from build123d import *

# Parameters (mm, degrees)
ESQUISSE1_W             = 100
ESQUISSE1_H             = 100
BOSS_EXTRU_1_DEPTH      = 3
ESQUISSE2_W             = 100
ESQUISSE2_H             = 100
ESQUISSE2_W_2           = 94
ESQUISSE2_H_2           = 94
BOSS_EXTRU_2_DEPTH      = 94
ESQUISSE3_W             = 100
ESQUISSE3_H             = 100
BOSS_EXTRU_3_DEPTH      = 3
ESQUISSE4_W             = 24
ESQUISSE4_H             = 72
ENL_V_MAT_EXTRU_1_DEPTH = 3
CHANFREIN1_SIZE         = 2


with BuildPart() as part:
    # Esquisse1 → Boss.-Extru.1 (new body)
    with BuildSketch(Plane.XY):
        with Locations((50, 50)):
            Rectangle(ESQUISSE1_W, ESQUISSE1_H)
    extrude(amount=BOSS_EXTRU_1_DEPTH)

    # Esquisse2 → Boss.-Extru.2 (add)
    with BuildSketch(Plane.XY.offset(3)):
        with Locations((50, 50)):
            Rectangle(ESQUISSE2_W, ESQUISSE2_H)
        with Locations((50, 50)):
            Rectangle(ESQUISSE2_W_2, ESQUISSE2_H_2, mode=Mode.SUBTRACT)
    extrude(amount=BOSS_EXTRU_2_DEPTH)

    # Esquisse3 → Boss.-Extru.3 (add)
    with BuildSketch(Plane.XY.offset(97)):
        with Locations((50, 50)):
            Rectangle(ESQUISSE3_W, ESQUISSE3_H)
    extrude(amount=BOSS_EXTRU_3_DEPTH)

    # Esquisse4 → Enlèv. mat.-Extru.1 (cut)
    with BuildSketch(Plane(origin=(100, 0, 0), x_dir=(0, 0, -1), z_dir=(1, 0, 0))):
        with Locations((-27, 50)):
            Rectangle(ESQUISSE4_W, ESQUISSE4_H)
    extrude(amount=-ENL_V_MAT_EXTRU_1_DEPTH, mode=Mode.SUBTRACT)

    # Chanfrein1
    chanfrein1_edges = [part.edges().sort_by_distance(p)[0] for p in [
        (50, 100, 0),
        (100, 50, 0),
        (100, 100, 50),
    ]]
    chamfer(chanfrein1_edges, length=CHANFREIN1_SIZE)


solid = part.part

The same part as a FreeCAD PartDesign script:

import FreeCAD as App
import Part
import Sketcher
from FreeCAD import Vector


def edges_at(feature, points):
    """Names of the edges that pass closest to the given points."""
    edges = feature.Shape.Edges
    near = lambda p: min(range(len(edges)), key=lambda i: edges[i].distToShape(Part.Vertex(*p))[0])
    return sorted({f"Edge{near(p) + 1}" for p in points})

doc = App.newDocument("Part")
params = doc.addObject("Spreadsheet::Sheet", "Params")
for row, (alias, value) in enumerate([
    ("sketch1_width", "100 mm"),
    ("pad1_length", "3 mm"),
    ("sketch2_width", "100 mm"),
    ("sketch2_width2", "94 mm"),
    ("pad2_length", "94 mm"),
    ("sketch3_width", "100 mm"),
    ("pad3_length", "3 mm"),
    ("sketch4_width", "72 mm"),
    ("sketch4_height", "24 mm"),
    ("pocket1_length", "3 mm"),
    ("chamfer_size", "2 mm"),
], start=1):
    params.set(f"A{row}", alias)
    params.set(f"B{row}", "=" + value)
    params.setAlias(f"B{row}", alias)

body = doc.addObject("PartDesign::Body", "Body")

sketch1 = body.newObject("Sketcher::SketchObject", "Sketch")
sketch1.AttachmentSupport = (doc.getObject("XY_Plane"), [""])
sketch1.MapMode = "FlatFace"
sketch1.addGeometry([
    Part.LineSegment(Vector(0, 100, 0), Vector(0, 0, 0)),
    Part.LineSegment(Vector(0, 0, 0), Vector(100, 0, 0)),
    Part.LineSegment(Vector(100, 0, 0), Vector(100, 100, 0)),
    Part.LineSegment(Vector(100, 100, 0), Vector(0, 100, 0)),
], False)
sketch1.addConstraint([
    Sketcher.Constraint("Coincident", 0, 2, 1, 1),
    Sketcher.Constraint("Coincident", 1, 2, 2, 1),
    Sketcher.Constraint("Coincident", 2, 2, 3, 1),
    Sketcher.Constraint("Coincident", 3, 2, 0, 1),
    Sketcher.Constraint("Vertical", 0),
    Sketcher.Constraint("Horizontal", 1),
    Sketcher.Constraint("Vertical", 2),
    Sketcher.Constraint("Horizontal", 3),
    Sketcher.Constraint("Coincident", 0, 2, -1, 1),
    Sketcher.Constraint("Equal", 3, 0),
    Sketcher.Constraint("DistanceX", 1, 1, 1, 2, 100.0),
])
sketch1.setExpression("Constraints[10]", "Params.sketch1_width")
pad1 = body.newObject("PartDesign::Pad", "Pad")
pad1.Profile = sketch1
pad1.setExpression("Length", "Params.pad1_length")

sketch2 = body.newObject("Sketcher::SketchObject", "Sketch001")
sketch2.AttachmentSupport = (doc.getObject("XY_Plane"), [""])
sketch2.MapMode = "FlatFace"
sketch2.AttachmentOffset = App.Placement(Vector(0, 0, 3), App.Rotation())
sketch2.addGeometry([
    Part.LineSegment(Vector(0, 100, 0), Vector(0, 0, 0)),
    Part.LineSegment(Vector(0, 0, 0), Vector(100, 0, 0)),
    Part.LineSegment(Vector(100, 0, 0), Vector(100, 100, 0)),
    Part.LineSegment(Vector(100, 100, 0), Vector(0, 100, 0)),
    Part.LineSegment(Vector(97, 3, 0), Vector(3, 3, 0)),
    Part.LineSegment(Vector(3, 3, 0), Vector(3, 97, 0)),
    Part.LineSegment(Vector(3, 97, 0), Vector(97, 97, 0)),
    Part.LineSegment(Vector(97, 97, 0), Vector(97, 3, 0)),
], False)
sketch2.addConstraint([
    Sketcher.Constraint("Coincident", 0, 2, 1, 1),
    Sketcher.Constraint("Coincident", 1, 2, 2, 1),
    Sketcher.Constraint("Coincident", 2, 2, 3, 1),
    Sketcher.Constraint("Coincident", 3, 2, 0, 1),
    Sketcher.Constraint("Coincident", 4, 2, 5, 1),
    Sketcher.Constraint("Coincident", 5, 2, 6, 1),
    Sketcher.Constraint("Coincident", 6, 2, 7, 1),
    Sketcher.Constraint("Coincident", 7, 2, 4, 1),
    Sketcher.Constraint("Vertical", 0),
    Sketcher.Constraint("Horizontal", 1),
    Sketcher.Constraint("Vertical", 2),
    Sketcher.Constraint("Horizontal", 3),
    Sketcher.Constraint("Horizontal", 4),
    Sketcher.Constraint("Vertical", 5),
    Sketcher.Constraint("Horizontal", 6),
    Sketcher.Constraint("Vertical", 7),
    Sketcher.Constraint("Coincident", 0, 2, -1, 1),
    Sketcher.Constraint("Equal", 3, 0),
    Sketcher.Constraint("Equal", 6, 5),
    Sketcher.Constraint("DistanceX", 1, 1, 1, 2, 100.0),
    Sketcher.Constraint("DistanceX", 4, 2, 4, 1, 94.0),
    Sketcher.Constraint("DistanceX", -1, 1, 4, 2, 3.0),
    Sketcher.Constraint("DistanceY", -1, 1, 4, 2, 3.0),
])
sketch2.setExpression("Constraints[19]", "Params.sketch2_width")
sketch2.setExpression("Constraints[20]", "Params.sketch2_width2")
pad2 = body.newObject("PartDesign::Pad", "Pad001")
pad2.Profile = sketch2
pad2.setExpression("Length", "Params.pad2_length")

sketch3 = body.newObject("Sketcher::SketchObject", "Sketch002")
sketch3.AttachmentSupport = (doc.getObject("XY_Plane"), [""])
sketch3.MapMode = "FlatFace"
sketch3.AttachmentOffset = App.Placement(Vector(0, 0, 97), App.Rotation())
sketch3.addGeometry([
    Part.LineSegment(Vector(0, 100, 0), Vector(0, 0, 0)),
    Part.LineSegment(Vector(0, 0, 0), Vector(100, 0, 0)),
    Part.LineSegment(Vector(100, 0, 0), Vector(100, 100, 0)),
    Part.LineSegment(Vector(100, 100, 0), Vector(0, 100, 0)),
], False)
sketch3.addConstraint([
    Sketcher.Constraint("Coincident", 0, 2, 1, 1),
    Sketcher.Constraint("Coincident", 1, 2, 2, 1),
    Sketcher.Constraint("Coincident", 2, 2, 3, 1),
    Sketcher.Constraint("Coincident", 3, 2, 0, 1),
    Sketcher.Constraint("Vertical", 0),
    Sketcher.Constraint("Horizontal", 1),
    Sketcher.Constraint("Vertical", 2),
    Sketcher.Constraint("Horizontal", 3),
    Sketcher.Constraint("Coincident", 0, 2, -1, 1),
    Sketcher.Constraint("Equal", 3, 0),
    Sketcher.Constraint("DistanceX", 1, 1, 1, 2, 100.0),
])
sketch3.setExpression("Constraints[10]", "Params.sketch3_width")
pad3 = body.newObject("PartDesign::Pad", "Pad002")
pad3.Profile = sketch3
pad3.setExpression("Length", "Params.pad3_length")

sketch4 = body.newObject("Sketcher::SketchObject", "Sketch003")
sketch4.AttachmentSupport = (doc.getObject("YZ_Plane"), [""])
sketch4.MapMode = "FlatFace"
sketch4.AttachmentOffset = App.Placement(Vector(0, 0, 100), App.Rotation())
sketch4.addGeometry([
    Part.LineSegment(Vector(86, 39, 0), Vector(14, 39, 0)),
    Part.LineSegment(Vector(14, 39, 0), Vector(14, 15, 0)),
    Part.LineSegment(Vector(14, 15, 0), Vector(86, 15, 0)),
    Part.LineSegment(Vector(86, 15, 0), Vector(86, 39, 0)),
], False)
sketch4.addConstraint([
    Sketcher.Constraint("Coincident", 0, 2, 1, 1),
    Sketcher.Constraint("Coincident", 1, 2, 2, 1),
    Sketcher.Constraint("Coincident", 2, 2, 3, 1),
    Sketcher.Constraint("Coincident", 3, 2, 0, 1),
    Sketcher.Constraint("Horizontal", 0),
    Sketcher.Constraint("Vertical", 1),
    Sketcher.Constraint("Horizontal", 2),
    Sketcher.Constraint("Vertical", 3),
    Sketcher.Constraint("DistanceX", 0, 2, 0, 1, 72.0),
    Sketcher.Constraint("DistanceY", 1, 2, 1, 1, 24.0),
    Sketcher.Constraint("DistanceX", -1, 1, 0, 2, 14.0),
    Sketcher.Constraint("DistanceY", -1, 1, 0, 2, 39.0),
])
sketch4.setExpression("Constraints[8]", "Params.sketch4_width")
sketch4.setExpression("Constraints[9]", "Params.sketch4_height")
pocket1 = body.newObject("PartDesign::Pocket", "Pocket")
pocket1.Profile = sketch4
pocket1.setExpression("Length", "Params.pocket1_length")
doc.recompute()

chamfer = body.newObject("PartDesign::Chamfer", "Chamfer")
chamfer.Base = (pocket1, edges_at(pocket1, [(50, 100, 0), (100, 50, 0), (100, 100, 50)]))
chamfer.setExpression("Size", "Params.chamfer_size")

doc.recompute()
